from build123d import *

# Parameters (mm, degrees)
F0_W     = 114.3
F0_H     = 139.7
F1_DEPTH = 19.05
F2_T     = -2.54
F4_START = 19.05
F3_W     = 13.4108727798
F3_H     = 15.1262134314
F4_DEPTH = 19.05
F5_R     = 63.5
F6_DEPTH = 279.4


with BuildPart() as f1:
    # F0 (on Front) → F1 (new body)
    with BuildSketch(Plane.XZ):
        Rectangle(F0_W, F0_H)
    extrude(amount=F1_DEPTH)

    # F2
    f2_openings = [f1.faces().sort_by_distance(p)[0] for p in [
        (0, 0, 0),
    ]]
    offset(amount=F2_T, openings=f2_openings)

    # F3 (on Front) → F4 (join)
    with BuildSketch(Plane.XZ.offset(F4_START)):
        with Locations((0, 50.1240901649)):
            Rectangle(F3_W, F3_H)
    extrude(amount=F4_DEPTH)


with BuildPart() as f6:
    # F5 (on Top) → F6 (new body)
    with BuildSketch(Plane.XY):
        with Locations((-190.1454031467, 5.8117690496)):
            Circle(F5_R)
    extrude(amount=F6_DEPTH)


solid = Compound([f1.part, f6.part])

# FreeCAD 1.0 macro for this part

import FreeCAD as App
import Part
import Sketcher

V = App.Vector
Q = App.Units.Quantity


def faces_at(feature, points):
    """Names of the faces that lie closest to the given points."""
    faces = feature.Shape.Faces
    near = lambda p: min(range(len(faces)), key=lambda i: faces[i].distToShape(Part.Vertex(*p))[0])
    return sorted({f"Face{near(p) + 1}" for p in points})


def add_polygon(sketch, points):
    """Adds a closed chain of lines whose ends are joined by coincident constraints."""
    first, n = sketch.GeometryCount, len(points)
    for a, b in zip(points, points[1:] + points[:1]):
        sketch.addGeometry(Part.LineSegment(App.Vector(*a, 0), App.Vector(*b, 0)), False)
    for i in range(n):
        sketch.addConstraint(Sketcher.Constraint("Coincident", first + i, 2, first + (i + 1) % n, 1))

doc = App.newDocument("Part")
params = doc.addObject("Spreadsheet::Sheet", "Params")
for row, (alias, value) in enumerate([
    ("sketch1_width", "4.5 in"),
    ("sketch1_height", "5.5 in"),
    ("pad1_length", "0.75 in"),
    ("thickness_wall", "0.1 in"),
    ("pad2_length", "0.75 in"),
    ("sketch3_diameter", "5 in"),
    ("pad3_length", "11 in"),
], start=1):
    params.set(f"A{row}", alias)
    params.set(f"B{row}", "=" + value)
    params.setAlias(f"B{row}", alias)

body = doc.addObject("PartDesign::Body", "Body")

sketch1 = body.newObject("Sketcher::SketchObject", "Sketch")
sketch1.AttachmentSupport = (doc.getObject("XZ_Plane"), [""])
sketch1.MapMode = "FlatFace"
add_polygon(sketch1, [(-57, 70), (-57, -70), (57, -70), (57, 70)])
sketch1.addConstraint(Sketcher.Constraint("Vertical", 0))
sketch1.addConstraint(Sketcher.Constraint("Horizontal", 1))
sketch1.addConstraint(Sketcher.Constraint("Vertical", 2))
sketch1.addConstraint(Sketcher.Constraint("Horizontal", 3))
sketch1.addConstraint(Sketcher.Constraint("Symmetric", 0, 2, 2, 2, -1, 1))
sketch1.addConstraint(Sketcher.Constraint("DistanceX", 1, 1, 1, 2, Q("4.5 in")))
sketch1.addConstraint(Sketcher.Constraint("DistanceY", 0, 2, 0, 1, Q("5.5 in")))
sketch1.setExpression("Constraints[9]", "Params.sketch1_width")
sketch1.setExpression("Constraints[10]", "Params.sketch1_height")
pad1 = body.newObject("PartDesign::Pad", "Pad")
pad1.Profile = sketch1
pad1.setExpression("Length", "Params.pad1_length")
doc.recompute()

thickness = body.newObject("PartDesign::Thickness", "Thickness")
thickness.Base = (pad1, faces_at(pad1, [(0, 0, 0)]))
thickness.setExpression("Value", "Params.thickness_wall")
thickness.Reversed = True
thickness.Join = "Arc"

sketch2 = body.newObject("Sketcher::SketchObject", "Sketch001")
sketch2.AttachmentSupport = (doc.getObject("XZ_Plane"), [""])
sketch2.MapMode = "FlatFace"
sketch2.AttachmentOffset = App.Placement(V(0, 0, 0.75 * 25.4), App.Rotation())
add_polygon(sketch2, [(-7, 58), (-7, 43), (7, 43), (7, 58)])
sketch2.addConstraint(Sketcher.Constraint("Vertical", 0))
sketch2.addConstraint(Sketcher.Constraint("Horizontal", 1))
sketch2.addConstraint(Sketcher.Constraint("Vertical", 2))
sketch2.addConstraint(Sketcher.Constraint("Horizontal", 3))
sketch2.addConstraint(Sketcher.Constraint("DistanceX", 1, 1, 1, 2, 13.410873))
sketch2.addConstraint(Sketcher.Constraint("DistanceY", 0, 2, 0, 1, 15.126213))
sketch2.addConstraint(Sketcher.Constraint("DistanceX", 0, 2, -1, 1, 6.705436))
sketch2.addConstraint(Sketcher.Constraint("DistanceY", -1, 1, 0, 2, 42.560983))
pad2 = body.newObject("PartDesign::Pad", "Pad001")
pad2.Profile = sketch2
pad2.setExpression("Length", "Params.pad2_length")
body2 = doc.addObject("PartDesign::Body", "Body001")

sketch3 = body2.newObject("Sketcher::SketchObject", "Sketch002")
sketch3.AttachmentSupport = (doc.getObject("XY_Plane001"), [""])
sketch3.MapMode = "FlatFace"
sketch3.addGeometry(Part.Circle(V(-190, 6, 0), V(0, 0, 1), 64), False)
sketch3.addConstraint(Sketcher.Constraint("Diameter", 0, Q("5 in")))
sketch3.addConstraint(Sketcher.Constraint("DistanceY", -1, 1, 0, 3, 5.811769))
sketch3.addConstraint(Sketcher.Constraint("DistanceX", 0, 3, -1, 1, 190.145403))
sketch3.setExpression("Constraints[0]", "Params.sketch3_diameter")
pad3 = body2.newObject("PartDesign::Pad", "Pad002")
pad3.Profile = sketch3
pad3.setExpression("Length", "Params.pad3_length")

doc.recompute()
